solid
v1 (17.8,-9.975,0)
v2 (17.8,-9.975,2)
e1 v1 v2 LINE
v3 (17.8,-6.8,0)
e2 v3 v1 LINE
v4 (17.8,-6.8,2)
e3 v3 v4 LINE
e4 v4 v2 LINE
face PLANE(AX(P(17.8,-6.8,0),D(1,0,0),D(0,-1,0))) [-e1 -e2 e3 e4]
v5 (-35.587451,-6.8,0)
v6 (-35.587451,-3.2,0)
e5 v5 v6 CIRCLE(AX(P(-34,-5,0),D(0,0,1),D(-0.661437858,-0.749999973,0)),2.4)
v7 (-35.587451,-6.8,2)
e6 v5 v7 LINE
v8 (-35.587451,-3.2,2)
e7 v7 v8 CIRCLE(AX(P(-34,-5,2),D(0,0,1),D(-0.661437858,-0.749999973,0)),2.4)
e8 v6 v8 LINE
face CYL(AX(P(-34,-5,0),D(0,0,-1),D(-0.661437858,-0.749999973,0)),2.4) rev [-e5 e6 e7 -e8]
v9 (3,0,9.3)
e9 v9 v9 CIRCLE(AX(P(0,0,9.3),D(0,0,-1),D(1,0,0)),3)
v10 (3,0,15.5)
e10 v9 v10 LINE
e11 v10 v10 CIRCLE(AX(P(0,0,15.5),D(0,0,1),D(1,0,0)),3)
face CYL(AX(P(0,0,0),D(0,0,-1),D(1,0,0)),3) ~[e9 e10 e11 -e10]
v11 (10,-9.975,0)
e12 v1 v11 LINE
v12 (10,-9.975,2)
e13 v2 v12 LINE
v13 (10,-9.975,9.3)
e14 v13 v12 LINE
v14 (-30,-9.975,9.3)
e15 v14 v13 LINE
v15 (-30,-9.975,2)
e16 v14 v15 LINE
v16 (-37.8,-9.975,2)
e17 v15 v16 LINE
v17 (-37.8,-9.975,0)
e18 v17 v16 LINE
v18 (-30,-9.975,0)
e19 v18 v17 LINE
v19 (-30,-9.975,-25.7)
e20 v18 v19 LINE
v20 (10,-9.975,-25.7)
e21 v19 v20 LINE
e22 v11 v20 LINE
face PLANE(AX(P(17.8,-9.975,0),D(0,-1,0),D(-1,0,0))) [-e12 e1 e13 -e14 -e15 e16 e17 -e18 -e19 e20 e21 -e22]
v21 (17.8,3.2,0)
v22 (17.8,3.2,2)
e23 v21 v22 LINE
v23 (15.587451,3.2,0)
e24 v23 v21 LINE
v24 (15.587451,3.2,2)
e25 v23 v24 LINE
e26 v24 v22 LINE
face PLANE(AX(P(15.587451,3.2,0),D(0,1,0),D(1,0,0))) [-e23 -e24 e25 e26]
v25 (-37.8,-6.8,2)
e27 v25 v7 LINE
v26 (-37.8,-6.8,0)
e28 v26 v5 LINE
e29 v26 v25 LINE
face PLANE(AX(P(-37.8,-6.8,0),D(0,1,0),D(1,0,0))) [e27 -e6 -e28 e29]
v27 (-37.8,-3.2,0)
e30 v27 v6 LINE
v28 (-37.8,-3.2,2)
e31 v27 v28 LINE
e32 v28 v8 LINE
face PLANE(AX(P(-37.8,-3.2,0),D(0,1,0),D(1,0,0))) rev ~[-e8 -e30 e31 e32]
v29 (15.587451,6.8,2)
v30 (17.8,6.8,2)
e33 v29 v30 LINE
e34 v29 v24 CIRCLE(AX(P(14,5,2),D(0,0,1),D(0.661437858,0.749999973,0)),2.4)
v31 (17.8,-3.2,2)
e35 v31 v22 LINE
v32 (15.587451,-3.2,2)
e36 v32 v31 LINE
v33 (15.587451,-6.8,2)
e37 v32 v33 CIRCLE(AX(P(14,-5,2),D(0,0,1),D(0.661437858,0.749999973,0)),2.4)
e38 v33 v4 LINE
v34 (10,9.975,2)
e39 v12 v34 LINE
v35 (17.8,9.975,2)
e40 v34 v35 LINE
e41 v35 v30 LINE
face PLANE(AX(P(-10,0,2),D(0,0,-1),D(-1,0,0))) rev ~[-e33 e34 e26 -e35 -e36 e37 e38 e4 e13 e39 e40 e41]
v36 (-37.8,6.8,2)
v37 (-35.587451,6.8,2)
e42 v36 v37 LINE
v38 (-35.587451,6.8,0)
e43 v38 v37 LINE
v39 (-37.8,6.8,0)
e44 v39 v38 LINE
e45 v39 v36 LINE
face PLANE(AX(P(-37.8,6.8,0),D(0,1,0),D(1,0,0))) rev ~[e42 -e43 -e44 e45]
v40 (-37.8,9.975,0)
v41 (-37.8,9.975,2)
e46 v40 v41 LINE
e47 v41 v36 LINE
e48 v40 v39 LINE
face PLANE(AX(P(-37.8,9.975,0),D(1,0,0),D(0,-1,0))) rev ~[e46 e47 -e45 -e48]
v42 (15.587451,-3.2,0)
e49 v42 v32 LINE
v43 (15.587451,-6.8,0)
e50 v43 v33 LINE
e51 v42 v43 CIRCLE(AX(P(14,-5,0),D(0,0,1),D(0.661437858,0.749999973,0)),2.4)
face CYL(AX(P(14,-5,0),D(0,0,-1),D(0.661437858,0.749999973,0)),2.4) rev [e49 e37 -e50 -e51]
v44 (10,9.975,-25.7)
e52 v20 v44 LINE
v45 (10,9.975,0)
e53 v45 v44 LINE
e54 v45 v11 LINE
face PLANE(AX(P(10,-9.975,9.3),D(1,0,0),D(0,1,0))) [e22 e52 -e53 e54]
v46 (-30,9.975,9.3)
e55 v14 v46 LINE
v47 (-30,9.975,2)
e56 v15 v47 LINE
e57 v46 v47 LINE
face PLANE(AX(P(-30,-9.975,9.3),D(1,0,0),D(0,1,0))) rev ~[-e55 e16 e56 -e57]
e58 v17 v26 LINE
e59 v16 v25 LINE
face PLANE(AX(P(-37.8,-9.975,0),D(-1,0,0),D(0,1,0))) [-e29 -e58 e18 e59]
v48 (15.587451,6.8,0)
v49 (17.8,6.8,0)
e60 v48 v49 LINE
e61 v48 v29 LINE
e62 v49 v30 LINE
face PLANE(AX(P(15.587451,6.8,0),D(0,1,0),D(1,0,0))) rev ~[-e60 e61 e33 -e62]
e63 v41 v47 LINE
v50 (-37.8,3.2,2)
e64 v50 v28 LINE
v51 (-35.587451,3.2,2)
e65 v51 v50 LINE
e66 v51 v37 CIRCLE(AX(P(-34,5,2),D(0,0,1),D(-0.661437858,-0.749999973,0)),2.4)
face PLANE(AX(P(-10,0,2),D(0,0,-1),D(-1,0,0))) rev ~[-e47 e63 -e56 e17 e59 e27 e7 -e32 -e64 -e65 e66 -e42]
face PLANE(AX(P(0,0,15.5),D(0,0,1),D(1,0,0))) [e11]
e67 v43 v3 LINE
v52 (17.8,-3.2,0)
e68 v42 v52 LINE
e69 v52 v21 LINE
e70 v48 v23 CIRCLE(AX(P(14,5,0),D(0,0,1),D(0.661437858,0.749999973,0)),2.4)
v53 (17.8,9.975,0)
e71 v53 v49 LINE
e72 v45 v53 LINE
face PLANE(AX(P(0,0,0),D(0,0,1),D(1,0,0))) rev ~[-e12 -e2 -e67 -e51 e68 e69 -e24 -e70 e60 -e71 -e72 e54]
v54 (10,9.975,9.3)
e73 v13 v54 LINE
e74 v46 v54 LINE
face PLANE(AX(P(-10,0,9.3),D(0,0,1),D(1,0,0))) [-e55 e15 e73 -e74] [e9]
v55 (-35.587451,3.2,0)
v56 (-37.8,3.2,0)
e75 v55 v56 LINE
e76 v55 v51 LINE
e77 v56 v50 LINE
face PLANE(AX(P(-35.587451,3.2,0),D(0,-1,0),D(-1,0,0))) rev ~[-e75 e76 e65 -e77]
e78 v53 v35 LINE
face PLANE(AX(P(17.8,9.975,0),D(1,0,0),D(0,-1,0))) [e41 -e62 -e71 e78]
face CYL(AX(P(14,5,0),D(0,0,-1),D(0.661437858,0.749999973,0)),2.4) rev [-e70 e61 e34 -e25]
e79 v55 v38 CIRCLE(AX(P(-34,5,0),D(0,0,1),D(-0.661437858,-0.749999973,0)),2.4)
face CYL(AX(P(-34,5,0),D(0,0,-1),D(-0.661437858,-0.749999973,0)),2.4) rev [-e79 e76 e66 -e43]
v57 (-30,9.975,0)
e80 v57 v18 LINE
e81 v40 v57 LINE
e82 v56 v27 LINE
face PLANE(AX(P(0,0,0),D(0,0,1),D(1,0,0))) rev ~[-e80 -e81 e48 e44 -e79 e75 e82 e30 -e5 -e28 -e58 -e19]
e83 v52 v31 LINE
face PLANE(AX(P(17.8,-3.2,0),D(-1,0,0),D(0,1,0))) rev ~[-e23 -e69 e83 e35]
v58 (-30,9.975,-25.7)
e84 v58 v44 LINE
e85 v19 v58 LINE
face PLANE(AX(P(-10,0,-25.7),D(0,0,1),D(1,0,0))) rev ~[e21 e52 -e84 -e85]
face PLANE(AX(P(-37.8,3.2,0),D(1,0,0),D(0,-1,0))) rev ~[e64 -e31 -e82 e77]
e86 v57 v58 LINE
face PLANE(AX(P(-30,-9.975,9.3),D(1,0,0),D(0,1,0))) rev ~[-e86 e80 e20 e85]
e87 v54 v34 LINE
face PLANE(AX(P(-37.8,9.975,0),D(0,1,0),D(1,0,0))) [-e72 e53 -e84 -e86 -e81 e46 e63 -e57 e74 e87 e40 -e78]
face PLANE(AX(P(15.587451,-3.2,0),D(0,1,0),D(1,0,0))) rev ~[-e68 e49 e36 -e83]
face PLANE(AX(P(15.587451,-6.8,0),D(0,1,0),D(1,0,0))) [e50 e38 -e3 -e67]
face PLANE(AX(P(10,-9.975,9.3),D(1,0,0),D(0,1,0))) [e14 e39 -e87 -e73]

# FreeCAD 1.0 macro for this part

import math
import FreeCAD as App
import Part
import Sketcher

doc = App.newDocument("Part")
body = doc.addObject("PartDesign::Body", "Body")

# Sketch on XY plane
sketch1 = body.newObject("Sketcher::SketchObject", "Sketch")
sketch1.AttachmentSupport = (doc.getObject("XY_Plane"), [""])
sketch1.MapMode = "FlatFace"
sketch1.addGeometry(Part.Circle(App.Vector(0, 0, 0), App.Vector(0, 0, 1), 3), False)
sketch1.addConstraint([
    Sketcher.Constraint("Coincident", 0, 3, -1, 1),
    Sketcher.Constraint("Diameter", 0, 6.0),
])
pad1 = body.newObject("PartDesign::Pad", "Pad")
pad1.Profile = sketch1
pad1.Length = 15.5
body2 = doc.addObject("PartDesign::Body", "Body001")

# Sketch on XY plane
sketch2 = body2.newObject("Sketcher::SketchObject", "Sketch001")
sketch2.AttachmentSupport = (doc.getObject("XY_Plane001"), [""])
sketch2.MapMode = "FlatFace"
sketch2.addGeometry([
    Part.LineSegment(App.Vector(17.8, 10, 0), App.Vector(-37.8, 10, 0)),  # 0
    Part.LineSegment(App.Vector(-37.8, 10, 0), App.Vector(-37.8, 6.8, 0)),  # 1
    Part.LineSegment(App.Vector(-37.8, 6.8, 0), App.Vector(-35.6, 6.8, 0)),  # 2
    Part.ArcOfCircle(Part.Circle(App.Vector(-34, 5, 0), App.Vector(0, 0, 1), 2.4), math.radians(-131), math.radians(131)),  # 3
    Part.LineSegment(App.Vector(-35.6, 3.2, 0), App.Vector(-37.8, 3.2, 0)),  # 4
    Part.LineSegment(App.Vector(-37.8, 3.2, 0), App.Vector(-37.8, -3.2, 0)),  # 5
    Part.LineSegment(App.Vector(-37.8, -3.2, 0), App.Vector(-35.6, -3.2, 0)),  # 6
    Part.ArcOfCircle(Part.Circle(App.Vector(-34, -5, 0), App.Vector(0, 0, 1), 2.4), math.radians(-131), math.radians(131)),  # 7
    Part.LineSegment(App.Vector(-35.6, -6.8, 0), App.Vector(-37.8, -6.8, 0)),  # 8
    Part.LineSegment(App.Vector(-37.8, -6.8, 0), App.Vector(-37.8, -10, 0)),  # 9
    Part.LineSegment(App.Vector(-37.8, -10, 0), App.Vector(17.8, -10, 0)),  # 10
    Part.LineSegment(App.Vector(17.8, -10, 0), App.Vector(17.8, -6.8, 0)),  # 11
    Part.LineSegment(App.Vector(17.8, -6.8, 0), App.Vector(15.6, -6.8, 0)),  # 12
    Part.ArcOfCircle(Part.Circle(App.Vector(14, -5, 0), App.Vector(0, 0, 1), 2.4), math.radians(49), math.radians(311)),  # 13
    Part.LineSegment(App.Vector(15.6, -3.2, 0), App.Vector(17.8, -3.2, 0)),  # 14
    Part.LineSegment(App.Vector(17.8, -3.2, 0), App.Vector(17.8, 3.2, 0)),  # 15
    Part.LineSegment(App.Vector(17.8, 3.2, 0), App.Vector(15.6, 3.2, 0)),  # 16
    Part.ArcOfCircle(Part.Circle(App.Vector(14, 5, 0), App.Vector(0, 0, 1), 2.4), math.radians(49), math.radians(311)),  # 17
    Part.LineSegment(App.Vector(15.6, 6.8, 0), App.Vector(17.8, 6.8, 0)),  # 18
    Part.LineSegment(App.Vector(17.8, 6.8, 0), App.Vector(17.8, 10, 0)),  # 19
], False)
sketch2.addConstraint([
    Sketcher.Constraint("Coincident", 0, 2, 1, 1),
    Sketcher.Constraint("Coincident", 1, 2, 2, 1),
    Sketcher.Constraint("Coincident", 2, 2, 3, 2),
    Sketcher.Constraint("Coincident", 3, 1, 4, 1),
    Sketcher.Constraint("Coincident", 4, 2, 5, 1),
    Sketcher.Constraint("Coincident", 5, 2, 6, 1),
    Sketcher.Constraint("Coincident", 6, 2, 7, 2),
    Sketcher.Constraint("Coincident", 7, 1, 8, 1),
    Sketcher.Constraint("Coincident", 8, 2, 9, 1),
    Sketcher.Constraint("Coincident", 9, 2, 10, 1),
    Sketcher.Constraint("Coincident", 10, 2, 11, 1),
    Sketcher.Constraint("Coincident", 11, 2, 12, 1),
    Sketcher.Constraint("Coincident", 12, 2, 13, 2),
    Sketcher.Constraint("Coincident", 13, 1, 14, 1),
    Sketcher.Constraint("Coincident", 14, 2, 15, 1),
    Sketcher.Constraint("Coincident", 15, 2, 16, 1),
    Sketcher.Constraint("Coincident", 16, 2, 17, 2),
    Sketcher.Constraint("Coincident", 17, 1, 18, 1),
    Sketcher.Constraint("Coincident", 18, 2, 19, 1),
    Sketcher.Constraint("Coincident", 19, 2, 0, 1),
    Sketcher.Constraint("Horizontal", 0),
    Sketcher.Constraint("Vertical", 1),
    Sketcher.Constraint("Horizontal", 2),
    Sketcher.Constraint("Horizontal", 4),
    Sketcher.Constraint("Vertical", 5),
    Sketcher.Constraint("Horizontal", 6),
    Sketcher.Constraint("Horizontal", 8),
    Sketcher.Constraint("Vertical", 9),
    Sketcher.Constraint("Horizontal", 10),
    Sketcher.Constraint("Vertical", 11),
    Sketcher.Constraint("Horizontal", 12),
    Sketcher.Constraint("Horizontal", 14),
    Sketcher.Constraint("Vertical", 15),
    Sketcher.Constraint("Horizontal", 16),
    Sketcher.Constraint("Horizontal", 18),
    Sketcher.Constraint("Vertical", 19),
    Sketcher.Constraint("Equal", 3, 7),
    Sketcher.Constraint("Equal", 7, 13),
    Sketcher.Constraint("Equal", 13, 17),
    Sketcher.Constraint("Symmetric", 3, 3, 7, 3, -1),
    Sketcher.Constraint("Symmetric", 13, 3, 17, 3, -1),
    Sketcher.Constraint("Symmetric", 1, 2, 8, 2, -1),
    Sketcher.Constraint("Symmetric", 11, 2, 18, 2, -1),
    Sketcher.Constraint("Horizontal", 7, 3, 13, 3),
    Sketcher.Constraint("Horizontal", 8, 2, 11, 2),
    Sketcher.Constraint("Horizontal", 6, 2, 13, 1),
    Sketcher.Constraint("Horizontal", 4, 2, 15, 2),
    Sketcher.Constraint("Vertical", 2, 2, 3, 1),
    Sketcher.Constraint("Vertical", 1, 2, 4, 2),
    Sketcher.Constraint("Vertical", 3, 1, 6, 2),
    Sketcher.Constraint("Vertical", 11, 2, 14, 2),
    Sketcher.Constraint("Equal", 8, 12),
    Sketcher.Constraint("Equal", 1, 9),
    Sketcher.Constraint("Radius", 3, 2.4),
    Sketcher.Constraint("DistanceX", 0, 2, 0, 1, 55.6),
    Sketcher.Constraint("DistanceY", 5, 2, 5, 1, 6.4),
    Sketcher.Constraint("DistanceX", 3, 3, -1, 1, 34.0),
    Sketcher.Constraint("DistanceY", -1, 1, 3, 3, 5.0),
    Sketcher.Constraint("DistanceX", -1, 1, 13, 3, 14.0),
    Sketcher.Constraint("DistanceY", 1, 2, 1, 1, 3.175),
])
pad2 = body2.newObject("PartDesign::Pad", "Pad001")
pad2.Profile = sketch2
pad2.Length = 2
doc.recompute()

boolean = body2.newObject("PartDesign::Boolean", "Boolean")
boolean.Type = "Fuse"
boolean.addObjects([body])
body3 = doc.addObject("PartDesign::Body", "Body002")

# Sketch on XY plane
sketch3 = body3.newObject("Sketcher::SketchObject", "Sketch002")
sketch3.AttachmentSupport = (doc.getObject("XY_Plane002"), [""])
sketch3.MapMode = "FlatFace"
sketch3.AttachmentOffset = App.Placement(App.Vector(0, 0, 9.3), App.Rotation())
sketch3.addGeometry([
    Part.LineSegment(App.Vector(-30, 10, 0), App.Vector(-30, -10, 0)),
    Part.LineSegment(App.Vector(-30, -10, 0), App.Vector(10, -10, 0)),
    Part.LineSegment(App.Vector(10, -10, 0), App.Vector(10, 10, 0)),
    Part.LineSegment(App.Vector(10, 10, 0), App.Vector(-30, 10, 0)),
], False)
sketch3.addConstraint([
    Sketcher.Constraint("Coincident", 0, 2, 1, 1),
    Sketcher.Constraint("Coincident", 1, 2, 2, 1),
    Sketcher.Constraint("Coincident", 2, 2, 3, 1),
    Sketcher.Constraint("Coincident", 3, 2, 0, 1),
    Sketcher.Constraint("Vertical", 0),
    Sketcher.Constraint("Horizontal", 1),
    Sketcher.Constraint("Vertical", 2),
    Sketcher.Constraint("Horizontal", 3),
    Sketcher.Constraint("DistanceX", 1, 1, 1, 2, 40.0),
    Sketcher.Constraint("DistanceX", 0, 2, -1, 1, 30.0),
    Sketcher.Constraint("DistanceY", 0, 2, 0, 1, 19.95),
    Sketcher.Constraint("DistanceY", 0, 2, -1, 1, 9.975),
])
pad3 = body3.newObject("PartDesign::Pad", "Pad002")
pad3.Profile = sketch3
pad3.Length = 35
pad3.Reversed = True
doc.recompute()

boolean2 = body3.newObject("PartDesign::Boolean", "Boolean001")
boolean2.Type = "Fuse"
boolean2.addObjects([body2])

doc.recompute()
